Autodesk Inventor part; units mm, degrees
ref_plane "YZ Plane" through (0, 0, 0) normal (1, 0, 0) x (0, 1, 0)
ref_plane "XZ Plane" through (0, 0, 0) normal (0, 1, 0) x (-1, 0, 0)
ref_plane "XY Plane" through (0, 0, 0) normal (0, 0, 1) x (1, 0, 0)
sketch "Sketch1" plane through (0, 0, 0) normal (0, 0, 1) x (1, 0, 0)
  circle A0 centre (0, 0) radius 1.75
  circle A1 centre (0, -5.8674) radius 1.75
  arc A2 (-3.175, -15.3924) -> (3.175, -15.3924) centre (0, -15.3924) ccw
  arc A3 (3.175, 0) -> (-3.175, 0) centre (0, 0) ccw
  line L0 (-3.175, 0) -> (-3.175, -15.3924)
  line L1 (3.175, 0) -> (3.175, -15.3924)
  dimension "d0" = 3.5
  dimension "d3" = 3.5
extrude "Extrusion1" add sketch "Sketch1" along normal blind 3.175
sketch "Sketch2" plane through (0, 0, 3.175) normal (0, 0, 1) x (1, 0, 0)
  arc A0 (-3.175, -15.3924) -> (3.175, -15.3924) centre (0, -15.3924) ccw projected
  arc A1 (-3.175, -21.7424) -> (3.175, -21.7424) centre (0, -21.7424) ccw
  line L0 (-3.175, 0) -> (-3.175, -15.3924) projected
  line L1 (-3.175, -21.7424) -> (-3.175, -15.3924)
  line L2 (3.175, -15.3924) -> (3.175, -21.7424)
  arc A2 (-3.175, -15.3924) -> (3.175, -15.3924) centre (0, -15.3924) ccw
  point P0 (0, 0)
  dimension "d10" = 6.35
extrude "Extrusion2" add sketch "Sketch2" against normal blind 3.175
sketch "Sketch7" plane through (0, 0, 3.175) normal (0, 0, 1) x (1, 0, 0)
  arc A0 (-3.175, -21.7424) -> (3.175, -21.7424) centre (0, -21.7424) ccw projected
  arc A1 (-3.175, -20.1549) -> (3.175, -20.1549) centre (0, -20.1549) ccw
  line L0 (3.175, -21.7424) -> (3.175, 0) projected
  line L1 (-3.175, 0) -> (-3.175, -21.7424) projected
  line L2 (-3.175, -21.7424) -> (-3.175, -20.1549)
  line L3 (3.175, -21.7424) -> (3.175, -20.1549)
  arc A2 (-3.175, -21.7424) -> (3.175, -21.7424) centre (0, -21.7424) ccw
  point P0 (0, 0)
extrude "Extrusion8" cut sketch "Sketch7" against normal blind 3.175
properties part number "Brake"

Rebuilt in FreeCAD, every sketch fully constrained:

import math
import FreeCAD as App
import Part
import Sketcher
from FreeCAD import Vector
Q = App.Units.Quantity

doc = App.newDocument("Part")
params = doc.addObject("Spreadsheet::Sheet", "Params")
for row, (alias, value) in enumerate([
    ("sketch1_radius", "0.125 in"),
    ("sketch1_height", "0.606 in"),
    ("pad1_length", "0.125 in"),
    ("sketch2_radius", "0.125 in"),
    ("sketch2_height", "0.25 in"),
    ("pad2_length", "0.125 in"),
    ("sketch3_radius", "0.125 in"),
    ("sketch3_height", "0.0625 in"),
    ("pocket1_length", "0.125 in"),
], start=1):
    params.set(f"A{row}", alias)
    params.set(f"B{row}", "=" + value)
    params.setAlias(f"B{row}", alias)

body = doc.addObject("PartDesign::Body", "Body")

sketch1 = body.newObject("Sketcher::SketchObject", "Sketch")
sketch1.AttachmentSupport = (doc.getObject("XY_Plane"), [""])
sketch1.MapMode = "FlatFace"
sketch1.addGeometry(Part.LineSegment(Vector(-3.175, 0, 0), Vector(-3.175, -15.3924, 0)), False)
sketch1.addGeometry(Part.ArcOfCircle(Part.Circle(Vector(0, -15.3924, 0), Vector(0, 0, 1), 3.175), math.radians(180), math.radians(360)), False)
sketch1.addGeometry(Part.LineSegment(Vector(3.175, -15.3924, 0), Vector(3.175, 0, 0)), False)
sketch1.addGeometry(Part.ArcOfCircle(Part.Circle(Vector(0, 0, 0), Vector(0, 0, 1), 3.175), math.radians(0), math.radians(180)), False)
sketch1.addGeometry(Part.Circle(Vector(0, -5.8674, 0), Vector(0, 0, 1), 1.75), False)
sketch1.addGeometry(Part.Circle(Vector(0, 0, 0), Vector(0, 0, 1), 1.75), False)
sketch1.addConstraint(Sketcher.Constraint("Tangent", 0, 2, 1, 1))
sketch1.addConstraint(Sketcher.Constraint("Tangent", 1, 2, 2, 1))
sketch1.addConstraint(Sketcher.Constraint("Tangent", 2, 2, 3, 1))
sketch1.addConstraint(Sketcher.Constraint("Tangent", 3, 2, 0, 1))
sketch1.addConstraint(Sketcher.Constraint("Vertical", 0))
sketch1.addConstraint(Sketcher.Constraint("Vertical", 2))
sketch1.addConstraint(Sketcher.Constraint("Coincident", 3, 3, -1, 1))
sketch1.addConstraint(Sketcher.Constraint("Coincident", 5, 3, -1, 1))
sketch1.addConstraint(Sketcher.Constraint("Equal", 4, 5))
sketch1.addConstraint(Sketcher.Constraint("PointOnObject", 4, 3, -2))
sketch1.addConstraint(Sketcher.Constraint("Diameter", 4, Q("0.1378 in")))
sketch1.addConstraint(Sketcher.Constraint("Radius", 1, Q("0.125 in")))
sketch1.addConstraint(Sketcher.Constraint("DistanceY", 0, 2, 0, 1, Q("0.606 in")))
sketch1.addConstraint(Sketcher.Constraint("DistanceY", 4, 3, -1, 1, Q("0.231 in")))
sketch1.setExpression("Constraints[11]", "Params.sketch1_radius")
sketch1.setExpression("Constraints[12]", "Params.sketch1_height")
pad1 = body.newObject("PartDesign::Pad", "Pad")
pad1.Profile = sketch1
pad1.setExpression("Length", "Params.pad1_length")

sketch2 = body.newObject("Sketcher::SketchObject", "Sketch001")
sketch2.AttachmentSupport = (doc.getObject("XY_Plane"), [""])
sketch2.MapMode = "FlatFace"
sketch2.AttachmentOffset = App.Placement(Vector(0, 0, 0.125 * 25.4), App.Rotation())
sketch2.addGeometry(Part.ArcOfCircle(Part.Circle(Vector(0, -15.3924, 0), Vector(0, 0, 1), 3.175), math.radians(180), math.radians(360)), False)
sketch2.addGeometry(Part.LineSegment(Vector(-3.175, -15.3924, 0), Vector(-3.175, -21.7424, 0)), False)
sketch2.addGeometry(Part.ArcOfCircle(Part.Circle(Vector(0, -21.7424, 0), Vector(0, 0, 1), 3.175), math.radians(180), math.radians(360)), False)
sketch2.addGeometry(Part.LineSegment(Vector(3.175, -21.7424, 0), Vector(3.175, -15.3924, 0)), False)
sketch2.addConstraint(Sketcher.Constraint("Tangent", 0, 1, 1, 1))
sketch2.addConstraint(Sketcher.Constraint("Tangent", 1, 2, 2, 1))
sketch2.addConstraint(Sketcher.Constraint("Tangent", 2, 2, 3, 1))
sketch2.addConstraint(Sketcher.Constraint("Tangent", 3, 2, 0, 2))
sketch2.addConstraint(Sketcher.Constraint("Vertical", 1))
sketch2.addConstraint(Sketcher.Constraint("Vertical", 3))
sketch2.addConstraint(Sketcher.Constraint("PointOnObject", 0, 3, -2))
sketch2.addConstraint(Sketcher.Constraint("Radius", 0, Q("0.125 in")))
sketch2.addConstraint(Sketcher.Constraint("DistanceY", 1, 2, 1, 1, Q("0.25 in")))
sketch2.addConstraint(Sketcher.Constraint("DistanceY", 0, 3, -1, 1, Q("0.606 in")))
sketch2.setExpression("Constraints[7]", "Params.sketch2_radius")
sketch2.setExpression("Constraints[8]", "Params.sketch2_height")
pad2 = body.newObject("PartDesign::Pad", "Pad001")
pad2.Profile = sketch2
pad2.setExpression("Length", "Params.pad2_length")
pad2.Reversed = True

sketch3 = body.newObject("Sketcher::SketchObject", "Sketch002")
sketch3.AttachmentSupport = (doc.getObject("XY_Plane"), [""])
sketch3.MapMode = "FlatFace"
sketch3.AttachmentOffset = App.Placement(Vector(0, 0, 0.125 * 25.4), App.Rotation())
sketch3.addGeometry(Part.LineSegment(Vector(-3.175, -20.1549, 0), Vector(-3.175, -21.7424, 0)), False)
sketch3.addGeometry(Part.ArcOfCircle(Part.Circle(Vector(0, -21.7424, 0), Vector(0, 0, 1), 3.175), math.radians(180), math.radians(360)), False)
sketch3.addGeometry(Part.LineSegment(Vector(3.175, -21.7424, 0), Vector(3.175, -20.1549, 0)), False)
sketch3.addGeometry(Part.ArcOfCircle(Part.Circle(Vector(0, -20.1549, 0), Vector(0, 0, 1), 3.175), math.radians(180), math.radians(360)), False)
sketch3.addConstraint(Sketcher.Constraint("Tangent", 0, 2, 1, 1))
sketch3.addConstraint(Sketcher.Constraint("Tangent", 1, 2, 2, 1))
sketch3.addConstraint(Sketcher.Constraint("Tangent", 2, 2, 3, 2))
sketch3.addConstraint(Sketcher.Constraint("Tangent", 3, 1, 0, 1))
sketch3.addConstraint(Sketcher.Constraint("Vertical", 0))
sketch3.addConstraint(Sketcher.Constraint("Vertical", 2))
sketch3.addConstraint(Sketcher.Constraint("PointOnObject", 1, 3, -2))
sketch3.addConstraint(Sketcher.Constraint("Radius", 1, Q("0.125 in")))
sketch3.addConstraint(Sketcher.Constraint("DistanceY", 0, 2, 0, 1, Q("0.0625 in")))
sketch3.addConstraint(Sketcher.Constraint("DistanceY", 1, 3, -1, 1, Q("0.856 in")))
sketch3.setExpression("Constraints[7]", "Params.sketch3_radius")
sketch3.setExpression("Constraints[8]", "Params.sketch3_height")
pocket1 = body.newObject("PartDesign::Pocket", "Pocket")
pocket1.Profile = sketch3
pocket1.setExpression("Length", "Params.pocket1_length")

doc.recompute()
